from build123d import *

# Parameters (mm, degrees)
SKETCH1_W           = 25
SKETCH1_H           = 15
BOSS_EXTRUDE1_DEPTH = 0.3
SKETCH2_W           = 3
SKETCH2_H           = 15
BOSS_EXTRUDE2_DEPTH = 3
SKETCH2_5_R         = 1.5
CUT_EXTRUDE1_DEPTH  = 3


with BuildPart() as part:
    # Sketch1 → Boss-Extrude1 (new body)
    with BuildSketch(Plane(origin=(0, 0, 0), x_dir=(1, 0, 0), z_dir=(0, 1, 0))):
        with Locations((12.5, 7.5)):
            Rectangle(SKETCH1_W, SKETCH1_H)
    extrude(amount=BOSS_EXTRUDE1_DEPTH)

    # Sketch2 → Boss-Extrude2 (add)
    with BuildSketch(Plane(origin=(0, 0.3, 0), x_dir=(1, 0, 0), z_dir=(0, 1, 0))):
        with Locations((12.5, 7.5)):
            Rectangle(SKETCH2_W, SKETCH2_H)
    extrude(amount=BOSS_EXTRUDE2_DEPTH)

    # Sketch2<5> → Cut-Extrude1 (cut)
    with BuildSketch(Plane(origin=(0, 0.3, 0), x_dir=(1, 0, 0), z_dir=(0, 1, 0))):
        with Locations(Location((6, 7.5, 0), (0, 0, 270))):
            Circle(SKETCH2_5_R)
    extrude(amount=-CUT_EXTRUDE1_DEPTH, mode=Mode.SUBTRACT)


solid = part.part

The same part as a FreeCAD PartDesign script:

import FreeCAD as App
import Part
import Sketcher

doc = App.newDocument("Part")
body = doc.addObject("PartDesign::Body", "Body")

# Sketch on XZ plane
sketch1 = body.newObject("Sketcher::SketchObject", "Sketch")
sketch1.AttachmentSupport = (doc.getObject("XZ_Plane"), [""])
sketch1.MapMode = "FlatFace"
sketch1.addGeometry([
    Part.LineSegment(App.Vector(0, -15, 0), App.Vector(0, 0, 0)),
    Part.LineSegment(App.Vector(0, 0, 0), App.Vector(25, 0, 0)),
    Part.LineSegment(App.Vector(25, 0, 0), App.Vector(25, -15, 0)),
    Part.LineSegment(App.Vector(25, -15, 0), App.Vector(0, -15, 0)),
], False)
sketch1.addConstraint([
    Sketcher.Constraint("Coincident", 0, 2, 1, 1),
    Sketcher.Constraint("Coincident", 1, 2, 2, 1),
    Sketcher.Constraint("Coincident", 2, 2, 3, 1),
    Sketcher.Constraint("Coincident", 3, 2, 0, 1),
    Sketcher.Constraint("Vertical", 0),
    Sketcher.Constraint("Horizontal", 1),
    Sketcher.Constraint("Vertical", 2),
    Sketcher.Constraint("Horizontal", 3),
    Sketcher.Constraint("Coincident", 0, 2, -1, 1),
    Sketcher.Constraint("DistanceX", 1, 1, 1, 2, 25.0),
    Sketcher.Constraint("DistanceY", 0, 1, 0, 2, 15.0),
])
pad1 = body.newObject("PartDesign::Pad", "Pad")
pad1.Profile = sketch1
pad1.Length = 0.3
pad1.Reversed = True

# Sketch on XZ plane
sketch2 = body.newObject("Sketcher::SketchObject", "Sketch001")
sketch2.AttachmentSupport = (doc.getObject("XZ_Plane"), [""])
sketch2.MapMode = "FlatFace"
sketch2.AttachmentOffset = App.Placement(App.Vector(0, 0, -0.3), App.Rotation())
sketch2.addGeometry([
    Part.LineSegment(App.Vector(11, -15, 0), App.Vector(11, 0, 0)),
    Part.LineSegment(App.Vector(11, 0, 0), App.Vector(14, 0, 0)),
    Part.LineSegment(App.Vector(14, 0, 0), App.Vector(14, -15, 0)),
    Part.LineSegment(App.Vector(14, -15, 0), App.Vector(11, -15, 0)),
], False)
sketch2.addConstraint([
    Sketcher.Constraint("Coincident", 0, 2, 1, 1),
    Sketcher.Constraint("Coincident", 1, 2, 2, 1),
    Sketcher.Constraint("Coincident", 2, 2, 3, 1),
    Sketcher.Constraint("Coincident", 3, 2, 0, 1),
    Sketcher.Constraint("Vertical", 0),
    Sketcher.Constraint("Horizontal", 1),
    Sketcher.Constraint("Vertical", 2),
    Sketcher.Constraint("Horizontal", 3),
    Sketcher.Constraint("PointOnObject", 0, 2, -1),
    Sketcher.Constraint("DistanceX", 1, 1, 1, 2, 3.0),
    Sketcher.Constraint("DistanceY", 0, 1, 0, 2, 15.0),
    Sketcher.Constraint("DistanceX", -1, 1, 0, 2, 11.0),
])
pad2 = body.newObject("PartDesign::Pad", "Pad001")
pad2.Profile = sketch2
pad2.Length = 3
pad2.Reversed = True

# Sketch on XZ plane
sketch3 = body.newObject("Sketcher::SketchObject", "Sketch002")
sketch3.AttachmentSupport = (doc.getObject("XZ_Plane"), [""])
sketch3.MapMode = "FlatFace"
sketch3.AttachmentOffset = App.Placement(App.Vector(0, 0, -0.3), App.Rotation())
sketch3.addGeometry(Part.Circle(App.Vector(6, -7.5, 0), App.Vector(0, 0, 1), 1.5), False)
sketch3.addConstraint([
    Sketcher.Constraint("Diameter", 0, 3.0),
    Sketcher.Constraint("DistanceX", -1, 1, 0, 3, 6.0),
    Sketcher.Constraint("DistanceY", 0, 3, -1, 1, 7.5),
])
pocket1 = body.newObject("PartDesign::Pocket", "Pocket")
pocket1.Profile = sketch3
pocket1.Length = 3
pocket1.Reversed = True

doc.recompute()
